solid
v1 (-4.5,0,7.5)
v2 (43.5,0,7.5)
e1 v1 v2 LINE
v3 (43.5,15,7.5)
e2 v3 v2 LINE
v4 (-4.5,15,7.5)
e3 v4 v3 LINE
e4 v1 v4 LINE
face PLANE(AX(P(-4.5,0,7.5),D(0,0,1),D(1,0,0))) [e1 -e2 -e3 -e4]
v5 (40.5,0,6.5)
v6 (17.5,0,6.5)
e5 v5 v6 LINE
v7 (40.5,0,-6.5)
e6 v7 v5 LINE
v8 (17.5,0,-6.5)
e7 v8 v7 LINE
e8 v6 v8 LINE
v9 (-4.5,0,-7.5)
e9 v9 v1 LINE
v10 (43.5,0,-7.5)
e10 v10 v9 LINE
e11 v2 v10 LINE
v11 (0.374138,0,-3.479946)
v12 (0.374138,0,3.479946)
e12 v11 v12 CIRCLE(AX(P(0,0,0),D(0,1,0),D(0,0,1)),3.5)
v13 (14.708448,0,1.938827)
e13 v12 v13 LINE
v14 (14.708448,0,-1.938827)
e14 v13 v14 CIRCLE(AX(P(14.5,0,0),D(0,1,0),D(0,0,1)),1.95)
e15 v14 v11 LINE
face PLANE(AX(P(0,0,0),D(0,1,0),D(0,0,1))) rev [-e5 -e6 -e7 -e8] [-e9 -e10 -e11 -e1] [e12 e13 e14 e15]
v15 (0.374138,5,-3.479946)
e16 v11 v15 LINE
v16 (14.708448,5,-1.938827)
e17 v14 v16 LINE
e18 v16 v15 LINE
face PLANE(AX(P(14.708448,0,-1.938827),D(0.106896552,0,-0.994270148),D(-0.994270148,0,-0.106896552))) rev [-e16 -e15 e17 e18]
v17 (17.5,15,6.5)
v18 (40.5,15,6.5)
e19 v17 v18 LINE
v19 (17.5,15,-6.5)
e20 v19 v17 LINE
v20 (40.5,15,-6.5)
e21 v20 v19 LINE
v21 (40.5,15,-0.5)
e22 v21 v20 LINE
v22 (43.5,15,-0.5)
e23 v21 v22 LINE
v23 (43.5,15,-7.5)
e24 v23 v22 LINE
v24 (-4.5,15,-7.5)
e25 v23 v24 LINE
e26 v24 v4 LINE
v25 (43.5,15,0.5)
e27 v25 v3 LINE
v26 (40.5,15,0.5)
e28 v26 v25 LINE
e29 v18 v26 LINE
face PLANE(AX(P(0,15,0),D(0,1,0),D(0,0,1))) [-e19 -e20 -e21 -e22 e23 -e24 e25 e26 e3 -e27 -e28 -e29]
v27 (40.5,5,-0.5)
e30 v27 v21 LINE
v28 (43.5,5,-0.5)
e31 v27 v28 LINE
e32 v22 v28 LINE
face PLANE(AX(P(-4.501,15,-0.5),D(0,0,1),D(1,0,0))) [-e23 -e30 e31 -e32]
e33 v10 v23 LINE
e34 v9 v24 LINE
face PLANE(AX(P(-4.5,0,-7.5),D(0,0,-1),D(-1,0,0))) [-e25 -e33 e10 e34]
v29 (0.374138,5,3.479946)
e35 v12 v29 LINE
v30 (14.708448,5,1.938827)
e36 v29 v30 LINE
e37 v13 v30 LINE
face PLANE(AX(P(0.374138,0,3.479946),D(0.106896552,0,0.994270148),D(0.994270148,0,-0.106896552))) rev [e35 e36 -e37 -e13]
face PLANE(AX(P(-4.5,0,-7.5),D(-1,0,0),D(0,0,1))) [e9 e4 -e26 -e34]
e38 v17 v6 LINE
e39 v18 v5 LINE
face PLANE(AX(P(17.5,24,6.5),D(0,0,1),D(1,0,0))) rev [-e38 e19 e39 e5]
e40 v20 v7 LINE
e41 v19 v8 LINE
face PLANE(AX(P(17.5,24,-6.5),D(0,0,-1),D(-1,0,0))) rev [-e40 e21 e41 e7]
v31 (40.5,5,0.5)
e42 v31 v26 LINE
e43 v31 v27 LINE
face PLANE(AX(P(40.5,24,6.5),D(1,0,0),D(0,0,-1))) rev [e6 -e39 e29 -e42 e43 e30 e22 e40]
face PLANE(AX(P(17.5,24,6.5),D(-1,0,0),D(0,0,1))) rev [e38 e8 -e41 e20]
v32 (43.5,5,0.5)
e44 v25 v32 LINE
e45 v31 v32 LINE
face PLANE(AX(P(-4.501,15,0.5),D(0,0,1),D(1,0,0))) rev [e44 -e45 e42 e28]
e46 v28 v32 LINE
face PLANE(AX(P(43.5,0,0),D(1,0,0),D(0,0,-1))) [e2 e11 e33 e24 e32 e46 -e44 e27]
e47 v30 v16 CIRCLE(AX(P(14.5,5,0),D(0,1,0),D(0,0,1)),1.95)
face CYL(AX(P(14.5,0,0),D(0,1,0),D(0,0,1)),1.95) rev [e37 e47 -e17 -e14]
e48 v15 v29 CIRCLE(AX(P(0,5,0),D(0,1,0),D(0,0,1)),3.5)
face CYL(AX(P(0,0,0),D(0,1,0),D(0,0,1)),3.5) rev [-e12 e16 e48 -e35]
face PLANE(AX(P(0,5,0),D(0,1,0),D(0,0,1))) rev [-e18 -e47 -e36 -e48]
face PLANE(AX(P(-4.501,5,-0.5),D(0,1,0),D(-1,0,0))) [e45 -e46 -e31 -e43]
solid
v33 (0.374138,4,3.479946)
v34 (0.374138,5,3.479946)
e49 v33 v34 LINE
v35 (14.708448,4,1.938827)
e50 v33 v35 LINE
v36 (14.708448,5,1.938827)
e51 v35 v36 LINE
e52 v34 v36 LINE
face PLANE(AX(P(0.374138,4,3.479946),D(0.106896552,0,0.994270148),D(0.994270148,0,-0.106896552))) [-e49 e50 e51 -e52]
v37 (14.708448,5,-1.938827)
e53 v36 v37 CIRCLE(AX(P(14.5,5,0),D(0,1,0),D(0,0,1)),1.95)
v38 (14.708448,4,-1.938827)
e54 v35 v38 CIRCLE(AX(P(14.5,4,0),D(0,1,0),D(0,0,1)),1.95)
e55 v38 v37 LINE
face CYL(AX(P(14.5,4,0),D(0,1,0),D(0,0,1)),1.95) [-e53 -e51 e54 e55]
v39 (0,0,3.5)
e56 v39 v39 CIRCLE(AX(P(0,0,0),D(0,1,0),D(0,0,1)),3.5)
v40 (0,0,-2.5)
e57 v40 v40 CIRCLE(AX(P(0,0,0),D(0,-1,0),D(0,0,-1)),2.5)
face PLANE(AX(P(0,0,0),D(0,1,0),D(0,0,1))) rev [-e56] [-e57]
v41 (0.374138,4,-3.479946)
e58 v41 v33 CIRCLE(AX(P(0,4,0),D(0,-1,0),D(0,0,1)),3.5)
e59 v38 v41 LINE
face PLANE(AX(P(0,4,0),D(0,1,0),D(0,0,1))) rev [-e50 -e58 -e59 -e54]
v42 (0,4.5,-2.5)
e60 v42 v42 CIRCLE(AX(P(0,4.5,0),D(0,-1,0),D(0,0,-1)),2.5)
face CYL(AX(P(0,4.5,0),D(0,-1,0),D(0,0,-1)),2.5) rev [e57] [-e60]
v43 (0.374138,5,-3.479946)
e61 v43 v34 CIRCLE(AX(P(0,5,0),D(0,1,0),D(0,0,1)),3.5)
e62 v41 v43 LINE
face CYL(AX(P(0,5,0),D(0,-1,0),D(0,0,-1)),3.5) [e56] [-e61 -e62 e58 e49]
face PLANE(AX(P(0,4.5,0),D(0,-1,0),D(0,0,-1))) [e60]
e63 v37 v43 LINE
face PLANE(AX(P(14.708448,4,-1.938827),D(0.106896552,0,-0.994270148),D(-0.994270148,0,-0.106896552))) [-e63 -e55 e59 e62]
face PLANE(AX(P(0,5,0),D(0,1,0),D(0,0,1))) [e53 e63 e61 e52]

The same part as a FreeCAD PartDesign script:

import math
import FreeCAD as App
import Part
import Sketcher
Q = App.Units.Quantity


def add_polygon(sketch, points):
    """Adds a closed chain of lines whose ends are joined by coincident constraints."""
    first, n = sketch.GeometryCount, len(points)
    for a, b in zip(points, points[1:] + points[:1]):
        sketch.addGeometry(Part.LineSegment(App.Vector(*a, 0), App.Vector(*b, 0)), False)
    for i in range(n):
        sketch.addConstraint(Sketcher.Constraint("Coincident", first + i, 2, first + (i + 1) % n, 1))

doc = App.newDocument("Part")
body = doc.addObject("PartDesign::Body", "Body")

sketch1 = body.newObject("Sketcher::SketchObject", "Sketch")
sketch1.AttachmentSupport = (doc.getObject("XZ_Plane"), [""])
sketch1.MapMode = "FlatFace"
sketch1.addGeometry(Part.Circle(App.Vector(0, 0, 0), App.Vector(0, 0, 1), 3.5), False)
sketch1.addConstraint(Sketcher.Constraint("Coincident", 0, 3, -1, 1))
sketch1.addConstraint(Sketcher.Constraint("Diameter", 0, Q("7 mm")))
pad1 = body.newObject("PartDesign::Pad", "Pad")
pad1.Profile = sketch1
pad1.Length = 5
pad1.Reversed = True

sketch2 = body.newObject("Sketcher::SketchObject", "Sketch001")
sketch2.AttachmentSupport = (doc.getObject("XZ_Plane"), [""])
sketch2.MapMode = "FlatFace"
sketch2.addGeometry(Part.Circle(App.Vector(0, 0, 0), App.Vector(0, 0, 1), 2.5), False)
sketch2.addConstraint(Sketcher.Constraint("Coincident", 0, 3, -1, 1))
sketch2.addConstraint(Sketcher.Constraint("Diameter", 0, Q("5 mm")))
pocket1 = body.newObject("PartDesign::Pocket", "Pocket")
pocket1.Profile = sketch2
pocket1.Length = 4.5

sketch3 = body.newObject("Sketcher::SketchObject", "Sketch002")
sketch3.AttachmentSupport = (doc.getObject("XZ_Plane"), [""])
sketch3.MapMode = "FlatFace"
sketch3.AttachmentOffset = App.Placement(App.Vector(0, 0, -4), App.Rotation())
sketch3.addGeometry(Part.LineSegment(App.Vector(0.374138, 3.479946, 0), App.Vector(14.708448, 1.938827, 0)), False)
sketch3.addGeometry(Part.ArcOfCircle(Part.Circle(App.Vector(14.5, 0, 0), App.Vector(0, 0, 1), 1.95), math.radians(-83.863554), math.radians(83.863554)), False)
sketch3.addGeometry(Part.LineSegment(App.Vector(14.708448, -1.938827, 0), App.Vector(0.374138, -3.479946, 0)), False)
sketch3.addGeometry(Part.ArcOfCircle(Part.Circle(App.Vector(0, 0, 0), App.Vector(0, 0, 1), 3.5), math.radians(-83.863554), math.radians(83.863554)), False)
sketch3.addConstraint(Sketcher.Constraint("Tangent", 0, 2, 1, 2))
sketch3.addConstraint(Sketcher.Constraint("Tangent", 1, 1, 2, 1))
sketch3.addConstraint(Sketcher.Constraint("Tangent", 2, 2, 3, 1))
sketch3.addConstraint(Sketcher.Constraint("Tangent", 3, 2, 0, 1))
sketch3.addConstraint(Sketcher.Constraint("Coincident", 3, 3, -1, 1))
sketch3.addConstraint(Sketcher.Constraint("PointOnObject", 1, 3, -1))
sketch3.addConstraint(Sketcher.Constraint("Radius", 3, Q("3.5 mm")))
sketch3.addConstraint(Sketcher.Constraint("Radius", 1, Q("1.95 mm")))
sketch3.addConstraint(Sketcher.Constraint("DistanceX", -1, 1, 1, 3, Q("14.5 mm")))
pad2 = body.newObject("PartDesign::Pad", "Pad001")
pad2.Profile = sketch3
pad2.Length = 1
pad2.Reversed = True
body2 = doc.addObject("PartDesign::Body", "Body001")

sketch4 = body2.newObject("Sketcher::SketchObject", "Sketch003")
sketch4.AttachmentSupport = (doc.getObject("XZ_Plane001"), [""])
sketch4.MapMode = "FlatFace"
sketch4.AttachmentOffset = App.Placement(App.Vector(0, 0, -5), App.Rotation())
add_polygon(sketch4, [(-4.5, -7.5), (-4.5, 7.5), (17.5, 7.5), (17.5, -7.5)])
sketch4.addGeometry(Part.LineSegment(App.Vector(14.708448, 1.938827, 0), App.Vector(0.374138, 3.479946, 0)), False)
sketch4.addGeometry(Part.ArcOfCircle(Part.Circle(App.Vector(0, 0, 0), App.Vector(0, 0, 1), 3.5), math.radians(83.863554), math.radians(276.136446)), False)
sketch4.addGeometry(Part.LineSegment(App.Vector(0.374138, -3.479946, 0), App.Vector(14.708448, -1.938827, 0)), False)
sketch4.addGeometry(Part.ArcOfCircle(Part.Circle(App.Vector(14.5, 0, 0), App.Vector(0, 0, 1), 1.95), math.radians(-83.863554), math.radians(83.863554)), False)
sketch4.addConstraint(Sketcher.Constraint("Tangent", 4, 2, 5, 1))
sketch4.addConstraint(Sketcher.Constraint("Tangent", 5, 2, 6, 1))
sketch4.addConstraint(Sketcher.Constraint("Tangent", 6, 2, 7, 1))
sketch4.addConstraint(Sketcher.Constraint("Tangent", 7, 2, 4, 1))
sketch4.addConstraint(Sketcher.Constraint("Vertical", 0))
sketch4.addConstraint(Sketcher.Constraint("Horizontal", 1))
sketch4.addConstraint(Sketcher.Constraint("Vertical", 2))
sketch4.addConstraint(Sketcher.Constraint("Horizontal", 3))
sketch4.addConstraint(Sketcher.Constraint("Coincident", 5, 3, -1, 1))
sketch4.addConstraint(Sketcher.Constraint("PointOnObject", 7, 3, -1))
sketch4.addConstraint(Sketcher.Constraint("Radius", 5, Q("3.5 mm")))
sketch4.addConstraint(Sketcher.Constraint("DistanceX", 1, 1, 1, 2, Q("22 mm")))
sketch4.addConstraint(Sketcher.Constraint("DistanceY", 0, 1, 0, 2, Q("15 mm")))
sketch4.addConstraint(Sketcher.Constraint("Radius", 7, Q("1.95 mm")))
sketch4.addConstraint(Sketcher.Constraint("DistanceX", 0, 2, 7, 3, Q("19 mm")))
sketch4.addConstraint(Sketcher.Constraint("DistanceX", -1, 1, 7, 3, Q("14.5 mm")))
sketch4.addConstraint(Sketcher.Constraint("DistanceY", -1, 1, 0, 2, Q("7.5 mm")))
pad3 = body2.newObject("PartDesign::Pad", "Pad002")
pad3.Profile = sketch4
pad3.Length = 5

sketch5 = body2.newObject("Sketcher::SketchObject", "Sketch004")
sketch5.AttachmentSupport = (doc.getObject("XZ_Plane001"), [""])
sketch5.MapMode = "FlatFace"
sketch5.AttachmentOffset = App.Placement(App.Vector(0, 0, -5), App.Rotation())
add_polygon(sketch5, [(-4.5, -7.5), (-4.5, 7.5), (17.5, 7.5), (17.5, -7.5)])
sketch5.addConstraint(Sketcher.Constraint("Vertical", 0))
sketch5.addConstraint(Sketcher.Constraint("Horizontal", 1))
sketch5.addConstraint(Sketcher.Constraint("Vertical", 2))
sketch5.addConstraint(Sketcher.Constraint("Horizontal", 3))
sketch5.addConstraint(Sketcher.Constraint("DistanceX", 1, 1, 1, 2, Q("22 mm")))
sketch5.addConstraint(Sketcher.Constraint("DistanceY", 0, 1, 0, 2, Q("15 mm")))
sketch5.addConstraint(Sketcher.Constraint("DistanceX", 0, 2, -1, 1, Q("4.5 mm")))
sketch5.addConstraint(Sketcher.Constraint("DistanceY", -1, 1, 0, 2, Q("7.5 mm")))
pad4 = body2.newObject("PartDesign::Pad", "Pad003")
pad4.Profile = sketch5
pad4.Length = 10
pad4.Reversed = True

sketch6 = body2.newObject("Sketcher::SketchObject", "Sketch005")
sketch6.AttachmentSupport = (doc.getObject("YZ_Plane001"), [""])
sketch6.MapMode = "FlatFace"
sketch6.AttachmentOffset = App.Placement(App.Vector(0, 0, 17.5), App.Rotation())
add_polygon(sketch6, [(15, 7.5), (0, 7.5), (0, -7.5), (15, -7.5)])
sketch6.addConstraint(Sketcher.Constraint("Horizontal", 0))
sketch6.addConstraint(Sketcher.Constraint("Vertical", 1))
sketch6.addConstraint(Sketcher.Constraint("Horizontal", 2))
sketch6.addConstraint(Sketcher.Constraint("Vertical", 3))
sketch6.addConstraint(Sketcher.Constraint("Symmetric", 0, 2, 1, 2, -1, 1))
sketch6.addConstraint(Sketcher.Constraint("Equal", 2, 1))
sketch6.addConstraint(Sketcher.Constraint("DistanceX", 0, 2, 0, 1, Q("15 mm")))
pad5 = body2.newObject("PartDesign::Pad", "Pad004")
pad5.Profile = sketch6
pad5.Length = 26

sketch7 = body2.newObject("Sketcher::SketchObject", "Sketch006")
sketch7.AttachmentSupport = (doc.getObject("XZ_Plane001"), [""])
sketch7.MapMode = "FlatFace"
add_polygon(sketch7, [(17.5, 6.5), (17.5, -6.5), (40.5, -6.5), (40.5, 6.5)])
sketch7.addConstraint(Sketcher.Constraint("Vertical", 0))
sketch7.addConstraint(Sketcher.Constraint("Horizontal", 1))
sketch7.addConstraint(Sketcher.Constraint("Vertical", 2))
sketch7.addConstraint(Sketcher.Constraint("Horizontal", 3))
sketch7.addConstraint(Sketcher.Constraint("DistanceX", 1, 1, 1, 2, Q("23 mm")))
sketch7.addConstraint(Sketcher.Constraint("DistanceY", 0, 2, 0, 1, Q("13 mm")))
sketch7.addConstraint(Sketcher.Constraint("DistanceX", -1, 1, 0, 2, Q("17.5 mm")))
sketch7.addConstraint(Sketcher.Constraint("DistanceY", 0, 2, -1, 1, Q("6.5 mm")))
pocket2 = body2.newObject("PartDesign::Pocket", "Pocket001")
pocket2.Profile = sketch7
pocket2.Length = 24

sketch8 = body2.newObject("Sketcher::SketchObject", "Sketch007")
sketch8.AttachmentSupport = (doc.getObject("YZ_Plane001"), [""])
sketch8.MapMode = "FlatFace"
sketch8.AttachmentOffset = App.Placement(App.Vector(0, 0, 43.5), App.Rotation())
add_polygon(sketch8, [(15, 0.5), (5, 0.5), (5, -0.5), (15, -0.5)])
sketch8.addConstraint(Sketcher.Constraint("Horizontal", 0))
sketch8.addConstraint(Sketcher.Constraint("Vertical", 1))
sketch8.addConstraint(Sketcher.Constraint("Horizontal", 2))
sketch8.addConstraint(Sketcher.Constraint("Vertical", 3))
sketch8.addConstraint(Sketcher.Constraint("DistanceX", 0, 2, 0, 1, Q("10 mm")))
sketch8.addConstraint(Sketcher.Constraint("DistanceY", 1, 2, 1, 1, Q("1 mm")))
sketch8.addConstraint(Sketcher.Constraint("DistanceX", -1, 1, 0, 2, Q("5 mm")))
sketch8.addConstraint(Sketcher.Constraint("DistanceY", -1, 1, 0, 2, Q("0.5 mm")))
pocket3 = body2.newObject("PartDesign::Pocket", "Pocket002")
pocket3.Profile = sketch8
pocket3.Length = 3

doc.recompute()
